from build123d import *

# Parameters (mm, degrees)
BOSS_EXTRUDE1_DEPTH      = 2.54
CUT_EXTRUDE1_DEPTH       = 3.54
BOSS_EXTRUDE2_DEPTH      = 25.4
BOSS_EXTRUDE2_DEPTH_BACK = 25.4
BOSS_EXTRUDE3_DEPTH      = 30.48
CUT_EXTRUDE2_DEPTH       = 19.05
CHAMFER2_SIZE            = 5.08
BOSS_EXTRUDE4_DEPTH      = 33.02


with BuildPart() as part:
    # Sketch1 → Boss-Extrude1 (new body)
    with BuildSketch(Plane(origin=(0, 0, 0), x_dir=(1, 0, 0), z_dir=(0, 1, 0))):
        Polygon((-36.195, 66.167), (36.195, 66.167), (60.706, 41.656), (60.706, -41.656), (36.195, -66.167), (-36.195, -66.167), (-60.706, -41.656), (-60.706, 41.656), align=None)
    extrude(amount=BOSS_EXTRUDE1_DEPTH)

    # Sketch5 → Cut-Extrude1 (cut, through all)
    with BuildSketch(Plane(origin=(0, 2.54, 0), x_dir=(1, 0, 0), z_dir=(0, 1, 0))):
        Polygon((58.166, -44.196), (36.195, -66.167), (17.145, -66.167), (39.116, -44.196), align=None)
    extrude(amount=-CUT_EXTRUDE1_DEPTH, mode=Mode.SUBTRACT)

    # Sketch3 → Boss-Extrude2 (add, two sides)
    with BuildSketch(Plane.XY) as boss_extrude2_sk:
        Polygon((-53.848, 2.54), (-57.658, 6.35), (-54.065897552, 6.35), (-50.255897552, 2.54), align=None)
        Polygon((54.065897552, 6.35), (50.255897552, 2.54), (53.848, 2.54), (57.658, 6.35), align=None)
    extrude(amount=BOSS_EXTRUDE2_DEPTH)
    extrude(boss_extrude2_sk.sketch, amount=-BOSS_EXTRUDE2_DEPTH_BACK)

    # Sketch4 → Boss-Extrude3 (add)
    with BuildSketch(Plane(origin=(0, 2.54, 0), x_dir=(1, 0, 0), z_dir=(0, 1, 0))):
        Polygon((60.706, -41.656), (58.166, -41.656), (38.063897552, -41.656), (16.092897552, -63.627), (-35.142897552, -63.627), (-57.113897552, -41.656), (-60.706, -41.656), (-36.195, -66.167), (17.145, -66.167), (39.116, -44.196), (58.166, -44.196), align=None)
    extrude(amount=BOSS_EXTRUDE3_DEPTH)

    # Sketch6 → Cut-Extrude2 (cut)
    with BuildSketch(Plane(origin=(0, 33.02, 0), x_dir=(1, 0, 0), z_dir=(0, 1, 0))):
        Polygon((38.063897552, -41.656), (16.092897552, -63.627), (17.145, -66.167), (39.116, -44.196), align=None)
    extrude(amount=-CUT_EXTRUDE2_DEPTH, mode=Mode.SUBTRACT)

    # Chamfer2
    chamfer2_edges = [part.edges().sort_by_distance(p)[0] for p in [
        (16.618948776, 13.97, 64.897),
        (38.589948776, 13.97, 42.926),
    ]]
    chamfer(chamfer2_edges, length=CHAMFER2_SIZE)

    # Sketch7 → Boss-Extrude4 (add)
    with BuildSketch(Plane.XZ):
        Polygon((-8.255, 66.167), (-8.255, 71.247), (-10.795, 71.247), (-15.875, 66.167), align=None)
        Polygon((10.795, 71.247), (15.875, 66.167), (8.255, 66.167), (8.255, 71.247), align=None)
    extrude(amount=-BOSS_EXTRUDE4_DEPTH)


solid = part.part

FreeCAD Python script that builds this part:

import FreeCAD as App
import Part
import Sketcher
from FreeCAD import Vector
Q = App.Units.Quantity


def edges_at(feature, points):
    """Names of the edges that pass closest to the given points."""
    edges = feature.Shape.Edges
    near = lambda p: min(range(len(edges)), key=lambda i: edges[i].distToShape(Part.Vertex(*p))[0])
    return sorted({f"Edge{near(p) + 1}" for p in points})


def add_polygon(sketch, points):
    """Adds a closed chain of lines whose ends are joined by coincident constraints."""
    first, n = sketch.GeometryCount, len(points)
    for a, b in zip(points, points[1:] + points[:1]):
        sketch.addGeometry(Part.LineSegment(App.Vector(*a, 0), App.Vector(*b, 0)), False)
    for i in range(n):
        sketch.addConstraint(Sketcher.Constraint("Coincident", first + i, 2, first + (i + 1) % n, 1))

doc = App.newDocument("Part")
params = doc.addObject("Spreadsheet::Sheet", "Params")
for row, (alias, value) in enumerate([
    ("sketch1_width", "2.85 in"),
    ("sketch1_height", "3.28 in"),
    ("pad1_length", "0.1 in"),
    ("sketch2_width", "0.75 in"),
    ("pad2_length", "1 in"),
    ("pad2_length2", "1 in"),
    ("sketch4_width", "2.1 in"),
    ("sketch4_width2", "0.75 in"),
    ("pad3_length", "1.2 in"),
    ("pocket2_length", "0.75 in"),
    ("chamfer_size", "0.2 in"),
    ("sketch6_width", "0.1 in"),
    ("sketch6_width2", "0.3 in"),
    ("pad4_length", "1.3 in"),
], start=1):
    params.set(f"A{row}", alias)
    params.set(f"B{row}", "=" + value)
    params.setAlias(f"B{row}", alias)

body = doc.addObject("PartDesign::Body", "Body")

sketch1 = doc.addObject("Sketcher::SketchObject", "Sketch")
body.addObject(sketch1)
sketch1.AttachmentSupport = (doc.XZ_Plane, [""])
sketch1.MapMode = "FlatFace"
add_polygon(sketch1, [(36.195, -66.167), (-36.195, -66.167), (-60.706, -41.656), (-60.706, 41.656), (-36.195, 66.167), (36.195, 66.167), (60.706, 41.656), (60.706, -41.656)])
sketch1.addConstraint(Sketcher.Constraint("Horizontal", 0))
sketch1.addConstraint(Sketcher.Constraint("Vertical", 2))
sketch1.addConstraint(Sketcher.Constraint("Horizontal", 4))
sketch1.addConstraint(Sketcher.Constraint("Vertical", 6))
sketch1.addConstraint(Sketcher.Constraint("Symmetric", 0, 2, 4, 2, -1, 1))
sketch1.addConstraint(Sketcher.Constraint("Symmetric", 1, 2, 5, 2, -1, 1))
sketch1.addConstraint(Sketcher.Constraint("Perpendicular", 1, 3))
sketch1.addConstraint(Sketcher.Constraint("Perpendicular", 5, 7))
sketch1.addConstraint(Sketcher.Constraint("Horizontal", 2, 2, 5, 2))
sketch1.addConstraint(Sketcher.Constraint("Horizontal", 1, 2, 6, 2))
sketch1.addConstraint(Sketcher.Constraint("Vertical", 0, 2, 3, 2))
sketch1.addConstraint(Sketcher.Constraint("DistanceX", 0, 2, 0, 1, Q("2.85 in")))
sketch1.addConstraint(Sketcher.Constraint("DistanceY", 2, 1, 2, 2, Q("3.28 in")))
sketch1.addConstraint(Sketcher.Constraint("DistanceX", 1, 2, -1, 1, Q("2.39 in")))
sketch1.setExpression("Constraints[19]", "Params.sketch1_width")
sketch1.setExpression("Constraints[20]", "Params.sketch1_height")
pad1 = doc.addObject("PartDesign::Pad", "Pad")
body.addObject(pad1)
pad1.Profile = sketch1
pad1.setExpression("Length", "Params.pad1_length")
pad1.Reversed = True

sketch2 = doc.addObject("Sketcher::SketchObject", "Sketch001")
body.addObject(sketch2)
sketch2.AttachmentSupport = (doc.XZ_Plane, [""])
sketch2.MapMode = "FlatFace"
sketch2.AttachmentOffset = App.Placement(Vector(0, 0, -0.1 * 25.4), App.Rotation())
add_polygon(sketch2, [(36.195, 66.167), (58.166, 44.196), (39.116, 44.196), (17.145, 66.167)])
sketch2.addConstraint(Sketcher.Constraint("Horizontal", 1))
sketch2.addConstraint(Sketcher.Constraint("Horizontal", 3))
sketch2.addConstraint(Sketcher.Constraint("Parallel", 0, 2))
sketch2.addConstraint(Sketcher.Constraint("Angle", 0, Q("-45 deg")))
sketch2.addConstraint(Sketcher.Constraint("DistanceX", 1, 2, 1, 1, Q("0.75 in")))
sketch2.addConstraint(Sketcher.Constraint("DistanceX", -1, 1, 0, 2, Q("2.29 in")))
sketch2.addConstraint(Sketcher.Constraint("DistanceY", -1, 1, 0, 2, Q("1.74 in")))
sketch2.addConstraint(Sketcher.Constraint("DistanceX", -1, 1, 2, 2, Q("0.675 in")))
sketch2.setExpression("Constraints[8]", "Params.sketch2_width")
pocket1 = doc.addObject("PartDesign::Pocket", "Pocket")
body.addObject(pocket1)
pocket1.Profile = sketch2
pocket1.Type = "ThroughAll"
pocket1.Reversed = True

sketch3 = doc.addObject("Sketcher::SketchObject", "Sketch002")
body.addObject(sketch3)
sketch3.AttachmentSupport = (doc.XY_Plane, [""])
sketch3.MapMode = "FlatFace"
add_polygon(sketch3, [(-57.658, 6.35), (-53.848, 2.54), (-50.255898, 2.54), (-54.065898, 6.35)])
add_polygon(sketch3, [(54.065898, 6.35), (50.255898, 2.54), (53.848, 2.54), (57.658, 6.35)])
sketch3.addConstraint(Sketcher.Constraint("Horizontal", 1))
sketch3.addConstraint(Sketcher.Constraint("Horizontal", 3))
sketch3.addConstraint(Sketcher.Constraint("Horizontal", 5))
sketch3.addConstraint(Sketcher.Constraint("Horizontal", 7))
sketch3.addConstraint(Sketcher.Constraint("Symmetric", 1, 2, 4, 2, -2))
sketch3.addConstraint(Sketcher.Constraint("Symmetric", 3, 2, 6, 2, -2))
sketch3.addConstraint(Sketcher.Constraint("Parallel", 0, 2))
sketch3.addConstraint(Sketcher.Constraint("Perpendicular", 2, 4))
sketch3.addConstraint(Sketcher.Constraint("Parallel", 4, 6))
sketch3.addConstraint(Sketcher.Constraint("Equal", 3, 5))
sketch3.addConstraint(Sketcher.Constraint("DistanceY", -1, 1, 0, 2, Q("0.1 in")))
sketch3.addConstraint(Sketcher.Constraint("DistanceX", 0, 2, -1, 1, Q("2.12 in")))
sketch3.addConstraint(Sketcher.Constraint("DistanceY", -1, 1, 2, 2, Q("0.25 in")))
sketch3.addConstraint(Sketcher.Constraint("DistanceX", 1, 1, 1, 2, 3.592102))
pad2 = doc.addObject("PartDesign::Pad", "Pad001")
body.addObject(pad2)
pad2.Profile = sketch3
pad2.Type = "TwoLengths"
pad2.setExpression("Length", "Params.pad2_length")
pad2.setExpression("Length2", "Params.pad2_length2")

sketch4 = doc.addObject("Sketcher::SketchObject", "Sketch003")
body.addObject(sketch4)
sketch4.AttachmentSupport = (doc.XZ_Plane, [""])
sketch4.MapMode = "FlatFace"
sketch4.AttachmentOffset = App.Placement(Vector(0, 0, -0.1 * 25.4), App.Rotation())
add_polygon(sketch4, [(60.706, 41.656), (38.063898, 41.656), (16.092898, 63.627), (-35.142898, 63.627), (-57.113898, 41.656), (-60.706, 41.656), (-36.195, 66.167), (17.145, 66.167), (39.116, 44.196), (58.166, 44.196)])
sketch4.addConstraint(Sketcher.Constraint("Horizontal", 0))
sketch4.addConstraint(Sketcher.Constraint("Horizontal", 2))
sketch4.addConstraint(Sketcher.Constraint("Horizontal", 4))
sketch4.addConstraint(Sketcher.Constraint("Horizontal", 6))
sketch4.addConstraint(Sketcher.Constraint("Horizontal", 8))
sketch4.addConstraint(Sketcher.Constraint("Symmetric", 4, 2, 9, 2, -2))
sketch4.addConstraint(Sketcher.Constraint("Perpendicular", 1, 3))
sketch4.addConstraint(Sketcher.Constraint("Parallel", 3, 5))
sketch4.addConstraint(Sketcher.Constraint("Perpendicular", 5, 7))
sketch4.addConstraint(Sketcher.Constraint("Parallel", 7, 9))
sketch4.addConstraint(Sketcher.Constraint("Equal", 1, 3))
sketch4.addConstraint(Sketcher.Constraint("Equal", 3, 7))
sketch4.addConstraint(Sketcher.Constraint("DistanceX", 6, 1, 6, 2, Q("2.1 in")))
sketch4.addConstraint(Sketcher.Constraint("DistanceX", 8, 1, 8, 2, Q("0.75 in")))
sketch4.addConstraint(Sketcher.Constraint("DistanceY", 2, 2, 5, 2, Q("0.1 in")))
sketch4.addConstraint(Sketcher.Constraint("DistanceY", -1, 1, 0, 2, Q("1.64 in")))
sketch4.addConstraint(Sketcher.Constraint("DistanceX", 4, 2, -1, 1, Q("2.39 in")))
sketch4.addConstraint(Sketcher.Constraint("DistanceX", 0, 2, 0, 1, 22.642102))
sketch4.addConstraint(Sketcher.Constraint("DistanceX", 2, 2, 2, 1, 51.235795))
sketch4.setExpression("Constraints[22]", "Params.sketch4_width")
sketch4.setExpression("Constraints[23]", "Params.sketch4_width2")
pad3 = doc.addObject("PartDesign::Pad", "Pad002")
body.addObject(pad3)
pad3.Profile = sketch4
pad3.setExpression("Length", "Params.pad3_length")
pad3.Reversed = True

sketch5 = doc.addObject("Sketcher::SketchObject", "Sketch004")
body.addObject(sketch5)
sketch5.AttachmentSupport = (doc.XZ_Plane, [""])
sketch5.MapMode = "FlatFace"
sketch5.AttachmentOffset = App.Placement(Vector(0, 0, -1.3 * 25.4), App.Rotation())
add_polygon(sketch5, [(38.063898, 41.656), (16.092898, 63.627), (17.145, 66.167), (39.116, 44.196)])
sketch5.addConstraint(Sketcher.Constraint("Parallel", 0, 2))
sketch5.addConstraint(Sketcher.Constraint("Parallel", 1, 3))
sketch5.addConstraint(Sketcher.Constraint("Angle", 0, Q("135 deg")))
sketch5.addConstraint(Sketcher.Constraint("Angle", 1, Q("67.5 deg")))
sketch5.addConstraint(Sketcher.Constraint("DistanceY", 0, 2, 1, 2, Q("0.1 in")))
sketch5.addConstraint(Sketcher.Constraint("DistanceX", -1, 1, 2, 2, Q("1.54 in")))
sketch5.addConstraint(Sketcher.Constraint("DistanceY", -1, 1, 2, 2, Q("1.74 in")))
sketch5.addConstraint(Sketcher.Constraint("DistanceY", -1, 1, 0, 2, Q("2.505 in")))
pocket2 = doc.addObject("PartDesign::Pocket", "Pocket001")
body.addObject(pocket2)
pocket2.Profile = sketch5
pocket2.setExpression("Length", "Params.pocket2_length")
pocket2.Reversed = True
doc.recompute()

chamfer = doc.addObject("PartDesign::Chamfer", "Chamfer")
body.addObject(chamfer)
chamfer.Base = (pocket2, edges_at(pocket2, [(16.619, 13.97, 64.897), (38.59, 13.97, 42.926)]))
chamfer.setExpression("Size", "Params.chamfer_size")

sketch6 = doc.addObject("Sketcher::SketchObject", "Sketch005")
body.addObject(sketch6)
sketch6.AttachmentSupport = (doc.XZ_Plane, [""])
sketch6.MapMode = "FlatFace"
add_polygon(sketch6, [(-8.255, 66.167), (-8.255, 71.247), (-10.795, 71.247), (-15.875, 66.167)])
add_polygon(sketch6, [(15.875, 66.167), (10.795, 71.247), (8.255, 71.247), (8.255, 66.167)])
sketch6.addConstraint(Sketcher.Constraint("Vertical", 0))
sketch6.addConstraint(Sketcher.Constraint("Horizontal", 1))
sketch6.addConstraint(Sketcher.Constraint("Horizontal", 3))
sketch6.addConstraint(Sketcher.Constraint("Horizontal", 5))
sketch6.addConstraint(Sketcher.Constraint("Vertical", 6))
sketch6.addConstraint(Sketcher.Constraint("Horizontal", 7))
sketch6.addConstraint(Sketcher.Constraint("Symmetric", 1, 2, 4, 2, -2))
sketch6.addConstraint(Sketcher.Constraint("Symmetric", 3, 2, 6, 2, -2))
sketch6.addConstraint(Sketcher.Constraint("Perpendicular", 2, 4))
sketch6.addConstraint(Sketcher.Constraint("Equal", 3, 7))
sketch6.addConstraint(Sketcher.Constraint("DistanceX", 1, 2, 1, 1, Q("0.1 in")))
sketch6.addConstraint(Sketcher.Constraint("DistanceX", 3, 1, 3, 2, Q("0.3 in")))
sketch6.addConstraint(Sketcher.Constraint("DistanceX", 0, 2, 4, 2, Q("0.75 in")))
sketch6.addConstraint(Sketcher.Constraint("DistanceY", -1, 1, 0, 2, Q("2.805 in")))
sketch6.setExpression("Constraints[18]", "Params.sketch6_width")
sketch6.setExpression("Constraints[19]", "Params.sketch6_width2")
pad4 = doc.addObject("PartDesign::Pad", "Pad003")
body.addObject(pad4)
pad4.Profile = sketch6
pad4.setExpression("Length", "Params.pad4_length")
pad4.Reversed = True

doc.recompute()
